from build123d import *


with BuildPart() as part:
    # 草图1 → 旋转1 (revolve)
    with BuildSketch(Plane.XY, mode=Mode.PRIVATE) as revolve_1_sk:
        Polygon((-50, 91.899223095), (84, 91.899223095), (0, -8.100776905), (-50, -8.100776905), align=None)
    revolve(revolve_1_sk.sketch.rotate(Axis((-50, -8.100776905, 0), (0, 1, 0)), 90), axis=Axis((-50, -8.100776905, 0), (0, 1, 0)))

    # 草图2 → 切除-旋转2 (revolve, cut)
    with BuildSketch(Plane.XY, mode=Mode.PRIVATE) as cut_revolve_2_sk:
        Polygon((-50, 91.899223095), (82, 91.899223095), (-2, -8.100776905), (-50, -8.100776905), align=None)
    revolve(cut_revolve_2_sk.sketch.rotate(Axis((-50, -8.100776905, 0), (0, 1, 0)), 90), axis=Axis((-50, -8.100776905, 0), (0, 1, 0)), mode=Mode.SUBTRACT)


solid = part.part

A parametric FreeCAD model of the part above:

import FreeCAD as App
import Part
import Sketcher
Q = App.Units.Quantity


def add_polygon(sketch, points):
    """Adds a closed chain of lines whose ends are joined by coincident constraints."""
    first, n = sketch.GeometryCount, len(points)
    for a, b in zip(points, points[1:] + points[:1]):
        sketch.addGeometry(Part.LineSegment(App.Vector(*a, 0), App.Vector(*b, 0)), False)
    for i in range(n):
        sketch.addConstraint(Sketcher.Constraint("Coincident", first + i, 2, first + (i + 1) % n, 1))

doc = App.newDocument("Part")
body = doc.addObject("PartDesign::Body", "Body")

# Sketch on XY plane
sketch1 = body.newObject("Sketcher::SketchObject", "Sketch")
sketch1.AttachmentSupport = (doc.getObject("XY_Plane"), [""])
sketch1.MapMode = "FlatFace"
add_polygon(sketch1, [(84, 92), (-50, 92), (-50, -8), (0, -8)])  # lines 0-3
sketch1.addGeometry(Part.LineSegment(App.Vector(-50, -8, 0), App.Vector(-50, 92, 0)), True)  # axis
sketch1.addConstraint([
    Sketcher.Constraint("Horizontal", 0),
    Sketcher.Constraint("Vertical", 1),
    Sketcher.Constraint("Horizontal", 2),
    Sketcher.Constraint("Vertical", 4),
    Sketcher.Constraint("Coincident", 4, 1, 1, 2),
    Sketcher.Constraint("PointOnObject", 2, 2, -2),
    Sketcher.Constraint("Horizontal", 3, 2, 4, 2),
    Sketcher.Constraint("DistanceX", 0, 2, 0, 1, Q("134 mm")),
    Sketcher.Constraint("DistanceX", 2, 1, 2, 2, Q("50 mm")),
    Sketcher.Constraint("DistanceY", 1, 2, 1, 1, Q("100 mm")),
    Sketcher.Constraint("DistanceY", -1, 1, 0, 2, Q("91.899223 mm")),
])
revolution = body.newObject("PartDesign::Revolution", "Revolution")
revolution.Profile = sketch1
revolution.ReferenceAxis = (sketch1, ["Axis0"])
revolution.Angle = 360

# Sketch on XY plane
sketch2 = body.newObject("Sketcher::SketchObject", "Sketch001")
sketch2.AttachmentSupport = (doc.getObject("XY_Plane"), [""])
sketch2.MapMode = "FlatFace"
add_polygon(sketch2, [(82, 92), (-50, 92), (-50, -8), (-2, -8)])  # lines 0-3
sketch2.addGeometry(Part.LineSegment(App.Vector(-50, -8, 0), App.Vector(-50, 92, 0)), True)  # axis
sketch2.addConstraint([
    Sketcher.Constraint("Horizontal", 0),
    Sketcher.Constraint("Vertical", 1),
    Sketcher.Constraint("Horizontal", 2),
    Sketcher.Constraint("Vertical", 4),
    Sketcher.Constraint("Coincident", 4, 1, 1, 2),
    Sketcher.Constraint("Horizontal", 3, 2, 4, 2),
    Sketcher.Constraint("DistanceX", 0, 2, 0, 1, Q("132 mm")),
    Sketcher.Constraint("DistanceX", 2, 1, 2, 2, Q("48 mm")),
    Sketcher.Constraint("DistanceY", 1, 2, 1, 1, Q("100 mm")),
    Sketcher.Constraint("DistanceX", 0, 2, -1, 1, Q("50 mm")),
    Sketcher.Constraint("DistanceY", -1, 1, 0, 2, Q("91.899223 mm")),
])
groove = body.newObject("PartDesign::Groove", "Groove")
groove.Profile = sketch2
groove.ReferenceAxis = (sketch2, ["Axis0"])
groove.Angle = 360

doc.recompute()
